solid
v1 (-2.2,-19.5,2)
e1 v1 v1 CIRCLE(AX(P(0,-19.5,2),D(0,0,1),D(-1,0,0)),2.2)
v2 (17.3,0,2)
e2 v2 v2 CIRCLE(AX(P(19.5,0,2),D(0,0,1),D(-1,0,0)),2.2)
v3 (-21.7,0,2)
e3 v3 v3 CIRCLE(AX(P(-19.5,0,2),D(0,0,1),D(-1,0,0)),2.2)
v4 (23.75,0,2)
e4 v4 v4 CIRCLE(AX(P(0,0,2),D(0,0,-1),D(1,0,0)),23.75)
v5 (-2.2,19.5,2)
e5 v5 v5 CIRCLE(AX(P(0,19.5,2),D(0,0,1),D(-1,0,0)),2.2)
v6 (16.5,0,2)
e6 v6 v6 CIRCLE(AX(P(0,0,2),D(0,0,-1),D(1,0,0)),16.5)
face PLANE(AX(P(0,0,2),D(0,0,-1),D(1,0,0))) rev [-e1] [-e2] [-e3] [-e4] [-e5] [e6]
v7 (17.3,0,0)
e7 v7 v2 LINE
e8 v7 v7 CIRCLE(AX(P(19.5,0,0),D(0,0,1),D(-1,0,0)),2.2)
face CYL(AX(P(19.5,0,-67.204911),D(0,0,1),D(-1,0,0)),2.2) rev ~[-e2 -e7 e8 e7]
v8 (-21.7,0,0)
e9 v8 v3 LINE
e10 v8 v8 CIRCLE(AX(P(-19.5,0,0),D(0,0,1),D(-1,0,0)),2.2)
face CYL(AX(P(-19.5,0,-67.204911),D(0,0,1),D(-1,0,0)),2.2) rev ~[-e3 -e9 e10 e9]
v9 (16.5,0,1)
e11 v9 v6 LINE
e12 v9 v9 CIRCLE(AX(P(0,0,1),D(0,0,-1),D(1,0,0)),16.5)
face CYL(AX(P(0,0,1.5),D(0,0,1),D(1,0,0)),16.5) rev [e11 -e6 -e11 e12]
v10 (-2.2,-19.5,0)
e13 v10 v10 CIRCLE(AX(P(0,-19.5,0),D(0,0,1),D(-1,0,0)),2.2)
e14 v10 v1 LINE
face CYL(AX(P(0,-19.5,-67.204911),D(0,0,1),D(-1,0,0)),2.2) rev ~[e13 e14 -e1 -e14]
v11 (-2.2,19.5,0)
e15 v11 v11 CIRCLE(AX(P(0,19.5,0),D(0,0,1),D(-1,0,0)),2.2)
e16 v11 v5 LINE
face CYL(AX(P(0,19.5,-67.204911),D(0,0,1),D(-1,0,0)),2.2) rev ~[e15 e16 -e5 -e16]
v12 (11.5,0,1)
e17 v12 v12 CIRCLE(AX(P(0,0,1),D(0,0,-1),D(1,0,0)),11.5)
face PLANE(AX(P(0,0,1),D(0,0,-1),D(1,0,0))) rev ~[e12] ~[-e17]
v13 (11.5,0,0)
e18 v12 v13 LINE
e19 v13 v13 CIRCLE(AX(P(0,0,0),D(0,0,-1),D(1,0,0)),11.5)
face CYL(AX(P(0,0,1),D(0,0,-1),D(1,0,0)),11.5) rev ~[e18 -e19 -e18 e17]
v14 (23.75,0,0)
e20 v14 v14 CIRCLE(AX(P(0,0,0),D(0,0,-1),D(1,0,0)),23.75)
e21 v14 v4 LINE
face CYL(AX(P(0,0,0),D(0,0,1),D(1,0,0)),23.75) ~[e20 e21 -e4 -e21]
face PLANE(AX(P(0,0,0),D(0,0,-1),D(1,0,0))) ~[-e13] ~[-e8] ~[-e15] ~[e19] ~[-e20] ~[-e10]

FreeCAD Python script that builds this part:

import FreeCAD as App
import Part
import Sketcher
from FreeCAD import Vector
Q = App.Units.Quantity

doc = App.newDocument("Part")
body = doc.addObject("PartDesign::Body", "Body")

# Sketch on XZ plane
sketch1 = body.newObject("Sketcher::SketchObject", "Sketch")
sketch1.AttachmentSupport = (doc.getObject("XZ_Plane"), [""])
sketch1.MapMode = "FlatFace"
sketch1.addGeometry([
    Part.LineSegment(Vector(11.5, 1, 0), Vector(11.5, 0, 0)),  # 0
    Part.LineSegment(Vector(11.5, 0, 0), Vector(23.8, 0, 0)),  # 1
    Part.LineSegment(Vector(23.8, 0, 0), Vector(23.8, 2, 0)),  # 2
    Part.LineSegment(Vector(23.8, 2, 0), Vector(16.5, 2, 0)),  # 3
    Part.LineSegment(Vector(16.5, 2, 0), Vector(16.5, 1, 0)),  # 4
    Part.LineSegment(Vector(16.5, 1, 0), Vector(11.5, 1, 0)),  # 5
], False)
sketch1.addConstraint([
    Sketcher.Constraint("Coincident", 0, 2, 1, 1),
    Sketcher.Constraint("Coincident", 1, 2, 2, 1),
    Sketcher.Constraint("Coincident", 2, 2, 3, 1),
    Sketcher.Constraint("Coincident", 3, 2, 4, 1),
    Sketcher.Constraint("Coincident", 4, 2, 5, 1),
    Sketcher.Constraint("Coincident", 5, 2, 0, 1),
    Sketcher.Constraint("Vertical", 0),
    Sketcher.Constraint("Horizontal", 1),
    Sketcher.Constraint("Vertical", 2),
    Sketcher.Constraint("Horizontal", 3),
    Sketcher.Constraint("Vertical", 4),
    Sketcher.Constraint("Horizontal", 5),
    Sketcher.Constraint("PointOnObject", 0, 2, -1),
    Sketcher.Constraint("Equal", 0, 4),
    Sketcher.Constraint("DistanceX", 5, 2, 5, 1, Q("5 mm")),
    Sketcher.Constraint("DistanceY", 0, 2, 0, 1, Q("1 mm")),
    Sketcher.Constraint("DistanceX", 1, 1, 1, 2, Q("12.25 mm")),
    Sketcher.Constraint("DistanceX", -1, 1, 0, 2, Q("11.5 mm")),
])
revolution = body.newObject("PartDesign::Revolution", "Revolution")
revolution.Profile = sketch1
revolution.ReferenceAxis = (sketch1, ["V_Axis"])
revolution.Angle = 360

# Sketch on XY plane
sketch2 = body.newObject("Sketcher::SketchObject", "Sketch001")
sketch2.AttachmentSupport = (doc.getObject("XY_Plane"), [""])
sketch2.MapMode = "FlatFace"
sketch2.addGeometry(Part.Circle(Vector(19.5, 0, 0), Vector(0, 0, 1), 2.2), False)
sketch2.addConstraint([
    Sketcher.Constraint("PointOnObject", 0, 3, -1),
    Sketcher.Constraint("Diameter", 0, Q("4.4 mm")),
    Sketcher.Constraint("DistanceX", -1, 1, 0, 3, Q("19.5 mm")),
])
doc.recompute()
hole = body.newObject("PartDesign::Hole", "Hole")
hole.Profile = sketch2
hole.ThreadType = "None"
hole.Diameter = 4.4
hole.DepthType = "ThroughAll"
hole.Reversed = True

# Sketch on XY plane
sketch3 = body.newObject("Sketcher::SketchObject", "Sketch002")
sketch3.AttachmentSupport = (doc.getObject("XY_Plane"), [""])
sketch3.MapMode = "FlatFace"
sketch3.addGeometry(Part.Circle(Vector(0, -19.5, 0), Vector(0, 0, 1), 2.2), False)
sketch3.addConstraint([
    Sketcher.Constraint("PointOnObject", 0, 3, -2),
    Sketcher.Constraint("Diameter", 0, Q("4.4 mm")),
    Sketcher.Constraint("DistanceY", 0, 3, -1, 1, Q("19.5 mm")),
])
doc.recompute()
hole2 = body.newObject("PartDesign::Hole", "Hole001")
hole2.Profile = sketch3
hole2.ThreadType = "None"
hole2.Diameter = 4.4
hole2.DepthType = "ThroughAll"
hole2.Reversed = True

# Sketch on XY plane
sketch4 = body.newObject("Sketcher::SketchObject", "Sketch003")
sketch4.AttachmentSupport = (doc.getObject("XY_Plane"), [""])
sketch4.MapMode = "FlatFace"
sketch4.addGeometry(Part.Circle(Vector(-19.5, 0, 0), Vector(0, 0, 1), 2.2), False)
sketch4.addConstraint([
    Sketcher.Constraint("PointOnObject", 0, 3, -1),
    Sketcher.Constraint("Diameter", 0, Q("4.4 mm")),
    Sketcher.Constraint("DistanceX", 0, 3, -1, 1, Q("19.5 mm")),
])
doc.recompute()
hole3 = body.newObject("PartDesign::Hole", "Hole002")
hole3.Profile = sketch4
hole3.ThreadType = "None"
hole3.Diameter = 4.4
hole3.DepthType = "ThroughAll"
hole3.Reversed = True

# Sketch on XY plane
sketch5 = body.newObject("Sketcher::SketchObject", "Sketch004")
sketch5.AttachmentSupport = (doc.getObject("XY_Plane"), [""])
sketch5.MapMode = "FlatFace"
sketch5.addGeometry(Part.Circle(Vector(0, 19.5, 0), Vector(0, 0, 1), 2.2), False)
sketch5.addConstraint([
    Sketcher.Constraint("PointOnObject", 0, 3, -2),
    Sketcher.Constraint("Diameter", 0, Q("4.4 mm")),
    Sketcher.Constraint("DistanceY", -1, 1, 0, 3, Q("19.5 mm")),
])
doc.recompute()
hole4 = body.newObject("PartDesign::Hole", "Hole003")
hole4.Profile = sketch5
hole4.ThreadType = "None"
hole4.Diameter = 4.4
hole4.DepthType = "ThroughAll"
hole4.Reversed = True

doc.recompute()
